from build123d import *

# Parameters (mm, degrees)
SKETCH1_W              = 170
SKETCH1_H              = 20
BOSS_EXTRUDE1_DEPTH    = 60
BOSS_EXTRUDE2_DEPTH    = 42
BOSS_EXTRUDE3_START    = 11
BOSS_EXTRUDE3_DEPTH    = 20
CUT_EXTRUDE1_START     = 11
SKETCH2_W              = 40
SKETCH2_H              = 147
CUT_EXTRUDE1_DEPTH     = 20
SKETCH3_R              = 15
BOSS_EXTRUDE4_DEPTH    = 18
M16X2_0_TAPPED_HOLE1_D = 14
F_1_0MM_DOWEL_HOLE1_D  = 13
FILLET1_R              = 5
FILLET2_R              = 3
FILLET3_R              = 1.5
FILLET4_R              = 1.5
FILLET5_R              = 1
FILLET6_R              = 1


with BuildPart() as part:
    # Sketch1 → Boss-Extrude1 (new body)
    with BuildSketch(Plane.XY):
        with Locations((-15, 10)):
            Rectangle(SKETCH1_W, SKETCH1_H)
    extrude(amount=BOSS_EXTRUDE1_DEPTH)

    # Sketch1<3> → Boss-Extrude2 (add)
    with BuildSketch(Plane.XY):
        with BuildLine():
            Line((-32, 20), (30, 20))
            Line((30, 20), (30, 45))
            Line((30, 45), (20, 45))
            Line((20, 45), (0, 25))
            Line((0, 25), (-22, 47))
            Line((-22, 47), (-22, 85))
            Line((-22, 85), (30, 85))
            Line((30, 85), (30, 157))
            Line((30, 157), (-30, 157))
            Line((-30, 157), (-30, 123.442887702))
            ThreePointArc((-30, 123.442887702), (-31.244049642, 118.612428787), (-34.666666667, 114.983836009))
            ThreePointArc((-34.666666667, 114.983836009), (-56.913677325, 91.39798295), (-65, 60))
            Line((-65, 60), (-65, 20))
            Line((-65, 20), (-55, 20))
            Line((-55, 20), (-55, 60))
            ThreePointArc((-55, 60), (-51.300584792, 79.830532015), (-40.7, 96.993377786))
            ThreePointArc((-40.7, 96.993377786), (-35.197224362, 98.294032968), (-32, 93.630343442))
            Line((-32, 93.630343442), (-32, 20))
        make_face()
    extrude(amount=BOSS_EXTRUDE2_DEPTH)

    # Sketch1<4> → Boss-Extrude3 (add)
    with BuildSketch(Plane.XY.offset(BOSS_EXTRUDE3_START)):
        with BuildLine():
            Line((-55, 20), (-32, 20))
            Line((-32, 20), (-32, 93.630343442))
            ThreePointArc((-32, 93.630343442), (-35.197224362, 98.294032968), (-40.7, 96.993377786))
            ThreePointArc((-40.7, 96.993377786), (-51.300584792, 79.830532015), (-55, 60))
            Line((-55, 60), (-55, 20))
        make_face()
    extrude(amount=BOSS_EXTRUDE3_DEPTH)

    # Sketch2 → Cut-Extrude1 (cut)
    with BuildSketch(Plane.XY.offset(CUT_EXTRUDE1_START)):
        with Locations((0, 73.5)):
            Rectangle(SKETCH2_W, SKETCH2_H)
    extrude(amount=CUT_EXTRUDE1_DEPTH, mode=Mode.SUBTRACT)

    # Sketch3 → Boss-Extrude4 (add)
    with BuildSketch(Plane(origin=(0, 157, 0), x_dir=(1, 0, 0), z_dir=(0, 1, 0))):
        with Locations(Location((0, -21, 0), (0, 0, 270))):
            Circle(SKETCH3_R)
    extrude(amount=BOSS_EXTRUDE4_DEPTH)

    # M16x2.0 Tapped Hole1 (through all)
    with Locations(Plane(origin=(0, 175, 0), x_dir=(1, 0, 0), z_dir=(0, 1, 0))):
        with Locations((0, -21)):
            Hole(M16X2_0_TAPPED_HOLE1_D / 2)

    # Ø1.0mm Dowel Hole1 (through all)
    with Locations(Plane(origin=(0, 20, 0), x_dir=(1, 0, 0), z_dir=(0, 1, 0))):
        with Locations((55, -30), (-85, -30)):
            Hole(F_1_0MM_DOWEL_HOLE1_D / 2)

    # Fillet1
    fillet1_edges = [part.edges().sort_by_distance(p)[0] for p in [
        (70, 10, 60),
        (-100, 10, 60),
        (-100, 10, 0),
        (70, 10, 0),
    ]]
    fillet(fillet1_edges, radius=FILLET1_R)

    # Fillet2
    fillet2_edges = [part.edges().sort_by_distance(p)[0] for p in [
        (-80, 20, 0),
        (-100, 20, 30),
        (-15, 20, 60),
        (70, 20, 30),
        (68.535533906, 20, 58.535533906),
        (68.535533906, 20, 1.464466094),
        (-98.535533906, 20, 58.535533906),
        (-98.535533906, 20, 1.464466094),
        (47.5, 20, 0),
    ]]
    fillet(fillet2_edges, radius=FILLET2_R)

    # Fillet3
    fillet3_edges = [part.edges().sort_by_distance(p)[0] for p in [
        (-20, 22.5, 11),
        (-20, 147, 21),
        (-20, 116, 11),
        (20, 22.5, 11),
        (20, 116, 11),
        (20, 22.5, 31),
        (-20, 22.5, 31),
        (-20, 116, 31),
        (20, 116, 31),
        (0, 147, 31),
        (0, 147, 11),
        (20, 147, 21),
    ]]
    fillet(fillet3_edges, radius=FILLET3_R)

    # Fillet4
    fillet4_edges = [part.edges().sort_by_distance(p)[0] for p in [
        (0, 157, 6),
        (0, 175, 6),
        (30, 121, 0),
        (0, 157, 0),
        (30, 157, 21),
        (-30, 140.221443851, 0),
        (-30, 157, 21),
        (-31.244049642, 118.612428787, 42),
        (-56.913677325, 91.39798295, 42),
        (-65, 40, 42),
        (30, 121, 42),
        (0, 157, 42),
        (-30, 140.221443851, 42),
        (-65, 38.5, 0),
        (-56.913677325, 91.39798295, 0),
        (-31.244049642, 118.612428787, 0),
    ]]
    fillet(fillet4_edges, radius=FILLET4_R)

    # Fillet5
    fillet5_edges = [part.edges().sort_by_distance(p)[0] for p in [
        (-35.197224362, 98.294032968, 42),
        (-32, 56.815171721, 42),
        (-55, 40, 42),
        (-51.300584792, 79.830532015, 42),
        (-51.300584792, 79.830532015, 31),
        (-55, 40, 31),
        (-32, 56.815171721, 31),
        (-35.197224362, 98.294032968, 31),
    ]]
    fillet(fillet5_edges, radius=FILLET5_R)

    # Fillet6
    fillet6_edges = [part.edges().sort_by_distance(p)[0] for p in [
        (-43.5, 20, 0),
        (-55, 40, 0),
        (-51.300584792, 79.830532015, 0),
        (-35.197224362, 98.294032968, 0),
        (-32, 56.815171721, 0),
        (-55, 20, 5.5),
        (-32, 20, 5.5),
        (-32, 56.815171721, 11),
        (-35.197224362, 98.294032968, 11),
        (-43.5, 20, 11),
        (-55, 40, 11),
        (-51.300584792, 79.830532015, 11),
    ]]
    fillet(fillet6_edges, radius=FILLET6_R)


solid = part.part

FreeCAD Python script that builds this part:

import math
import FreeCAD as App
import Part
import Sketcher
from FreeCAD import Vector
Q = App.Units.Quantity


def edges_at(feature, points):
    """Names of the edges that pass closest to the given points."""
    edges = feature.Shape.Edges
    near = lambda p: min(range(len(edges)), key=lambda i: edges[i].distToShape(Part.Vertex(*p))[0])
    return sorted({f"Edge{near(p) + 1}" for p in points})


def add_polygon(sketch, points):
    """Adds a closed chain of lines whose ends are joined by coincident constraints."""
    first, n = sketch.GeometryCount, len(points)
    for a, b in zip(points, points[1:] + points[:1]):
        sketch.addGeometry(Part.LineSegment(App.Vector(*a, 0), App.Vector(*b, 0)), False)
    for i in range(n):
        sketch.addConstraint(Sketcher.Constraint("Coincident", first + i, 2, first + (i + 1) % n, 1))

doc = App.newDocument("Part")
params = doc.addObject("Spreadsheet::Sheet", "Params")
for row, (alias, value) in enumerate([
    ("sketch1_width", "170 mm"),
    ("sketch1_height", "20 mm"),
    ("pad1_length", "60 mm"),
    ("sketch2_radius", "10 mm"),
    ("sketch2_radius2", "65 mm"),
    ("sketch2_radius3", "55 mm"),
    ("sketch2_radius4", "5 mm"),
    ("sketch2_width", "62 mm"),
    ("pad2_length", "42 mm"),
    ("sketch3_radius", "5 mm"),
    ("sketch3_radius2", "55 mm"),
    ("sketch3_width", "23 mm"),
    ("sketch3_height", "40 mm"),
    ("pad3_length", "20 mm"),
    ("sketch4_width", "40 mm"),
    ("sketch4_height", "147 mm"),
    ("pocket1_length", "20 mm"),
    ("sketch5_diameter", "30 mm"),
    ("pad4_length", "18 mm"),
    ("sketch6_diameter", "14 mm"),
    ("hole_diameter", "14 mm"),
    ("sketch7_diameter", "13 mm"),
    ("hole2_diameter", "13 mm"),
    ("fillet_radius", "5 mm"),
    ("fillet2_radius", "3 mm"),
    ("fillet3_radius", "1.5 mm"),
    ("fillet4_radius", "1.5 mm"),
    ("fillet5_radius", "1 mm"),
    ("fillet6_radius", "1 mm"),
], start=1):
    params.set(f"A{row}", alias)
    params.set(f"B{row}", "=" + value)
    params.setAlias(f"B{row}", alias)

body = doc.addObject("PartDesign::Body", "Body")

# Sketch on XY plane
sketch1 = doc.addObject("Sketcher::SketchObject", "Sketch")
body.addObject(sketch1)
sketch1.AttachmentSupport = (doc.XY_Plane, [""])
sketch1.MapMode = "FlatFace"
add_polygon(sketch1, [(-100, 20), (-100, 0), (70, 0), (70, 20)])  # lines 0-3
sketch1.addConstraint([
    Sketcher.Constraint("Vertical", 0),
    Sketcher.Constraint("Horizontal", 1),
    Sketcher.Constraint("Vertical", 2),
    Sketcher.Constraint("Horizontal", 3),
    Sketcher.Constraint("PointOnObject", 0, 2, -1),
    Sketcher.Constraint("DistanceX", 1, 1, 1, 2, 170.0),
    Sketcher.Constraint("DistanceY", 0, 2, 0, 1, 20.0),
    Sketcher.Constraint("DistanceX", 0, 2, -1, 1, 100.0),
])
sketch1.setExpression("Constraints[9]", "Params.sketch1_width")
sketch1.setExpression("Constraints[10]", "Params.sketch1_height")
pad1 = doc.addObject("PartDesign::Pad", "Pad")
body.addObject(pad1)
pad1.Profile = sketch1
pad1.setExpression("Length", "Params.pad1_length")

# Sketch on XY plane
sketch2 = doc.addObject("Sketcher::SketchObject", "Sketch001")
body.addObject(sketch2)
sketch2.AttachmentSupport = (doc.XY_Plane, [""])
sketch2.MapMode = "FlatFace"
sketch2.addGeometry([
    Part.LineSegment(Vector(-32, 20, 0), Vector(30, 20, 0)),  # 0
    Part.LineSegment(Vector(30, 20, 0), Vector(30, 45, 0)),  # 1
    Part.LineSegment(Vector(30, 45, 0), Vector(20, 45, 0)),  # 2
    Part.LineSegment(Vector(20, 45, 0), Vector(0, 25, 0)),  # 3
    Part.LineSegment(Vector(0, 25, 0), Vector(-22, 47, 0)),  # 4
    Part.LineSegment(Vector(-22, 47, 0), Vector(-22, 85, 0)),  # 5
    Part.LineSegment(Vector(-22, 85, 0), Vector(30, 85, 0)),  # 6
    Part.LineSegment(Vector(30, 85, 0), Vector(30, 157, 0)),  # 7
    Part.LineSegment(Vector(30, 157, 0), Vector(-30, 157, 0)),  # 8
    Part.LineSegment(Vector(-30, 157, 0), Vector(-30, 123, 0)),  # 9
    Part.ArcOfCircle(Part.Circle(Vector(-40, 123, 0), Vector(0, 0, 1), 10), math.radians(-58), math.radians(0)),  # 10
    Part.ArcOfCircle(Part.Circle(Vector(0, 60, 0), Vector(0, 0, 1), 65), math.radians(122), math.radians(180)),  # 11
    Part.LineSegment(Vector(-65, 60, 0), Vector(-65, 20, 0)),  # 12
    Part.LineSegment(Vector(-65, 20, 0), Vector(-55, 20, 0)),  # 13
    Part.LineSegment(Vector(-55, 20, 0), Vector(-55, 60, 0)),  # 14
    Part.ArcOfCircle(Part.Circle(Vector(0, 60, 0), Vector(0, 0, 1), 55), math.radians(138), math.radians(180)),  # 15
    Part.ArcOfCircle(Part.Circle(Vector(-37, 94, 0), Vector(0, 0, 1), 5), math.radians(0), math.radians(138)),  # 16
    Part.LineSegment(Vector(-32, 94, 0), Vector(-32, 20, 0)),  # 17
], False)
sketch2.addConstraint([
    Sketcher.Constraint("Coincident", 0, 2, 1, 1),
    Sketcher.Constraint("Coincident", 1, 2, 2, 1),
    Sketcher.Constraint("Coincident", 2, 2, 3, 1),
    Sketcher.Constraint("Coincident", 3, 2, 4, 1),
    Sketcher.Constraint("Coincident", 4, 2, 5, 1),
    Sketcher.Constraint("Coincident", 5, 2, 6, 1),
    Sketcher.Constraint("Coincident", 6, 2, 7, 1),
    Sketcher.Constraint("Coincident", 7, 2, 8, 1),
    Sketcher.Constraint("Coincident", 8, 2, 9, 1),
    Sketcher.Constraint("Tangent", 9, 2, 10, 2),
    Sketcher.Constraint("Tangent", 10, 1, 11, 1),
    Sketcher.Constraint("Tangent", 11, 2, 12, 1),
    Sketcher.Constraint("Coincident", 12, 2, 13, 1),
    Sketcher.Constraint("Coincident", 13, 2, 14, 1),
    Sketcher.Constraint("Tangent", 14, 2, 15, 2),
    Sketcher.Constraint("Tangent", 15, 1, 16, 2),
    Sketcher.Constraint("Tangent", 16, 1, 17, 1),
    Sketcher.Constraint("Coincident", 17, 2, 0, 1),
    Sketcher.Constraint("Horizontal", 0),
    Sketcher.Constraint("Vertical", 1),
    Sketcher.Constraint("Horizontal", 2),
    Sketcher.Constraint("Vertical", 5),
    Sketcher.Constraint("Horizontal", 6),
    Sketcher.Constraint("Vertical", 7),
    Sketcher.Constraint("Horizontal", 8),
    Sketcher.Constraint("Vertical", 9),
    Sketcher.Constraint("Vertical", 12),
    Sketcher.Constraint("Horizontal", 13),
    Sketcher.Constraint("Vertical", 14),
    Sketcher.Constraint("Vertical", 17),
    Sketcher.Constraint("Coincident", 15, 3, 11, 3),
    Sketcher.Constraint("PointOnObject", 11, 3, -2),
    Sketcher.Constraint("PointOnObject", 3, 2, -2),
    Sketcher.Constraint("Perpendicular", 3, 4),
    Sketcher.Constraint("Horizontal", 0, 2, 12, 2),
    Sketcher.Constraint("Vertical", 1, 2, 6, 2),
    Sketcher.Constraint("Equal", 2, 13),
    Sketcher.Constraint("Radius", 10, 10.0),
    Sketcher.Constraint("Radius", 11, 65.0),
    Sketcher.Constraint("Radius", 15, 55.0),
    Sketcher.Constraint("Radius", 16, 5.0),
    Sketcher.Constraint("DistanceX", 0, 1, 0, 2, 62.0),
    Sketcher.Constraint("DistanceX", 6, 1, 6, 2, 52.0),
    Sketcher.Constraint("DistanceX", 8, 2, 8, 1, 60.0),
    Sketcher.Constraint("DistanceY", 1, 1, 1, 2, 25.0),
    Sketcher.Constraint("DistanceY", 5, 1, 5, 2, 38.0),
    Sketcher.Constraint("DistanceY", 7, 1, 7, 2, 72.0),
    Sketcher.Constraint("DistanceY", 12, 2, 12, 1, 40.0),
    Sketcher.Constraint("Angle", 3, Q("-135 deg")),
    Sketcher.Constraint("DistanceX", 10, 3, -1, 1, 40.0),
    Sketcher.Constraint("DistanceY", -1, 1, 11, 3, 60.0),
])
sketch2.setExpression("Constraints[37]", "Params.sketch2_radius")
sketch2.setExpression("Constraints[38]", "Params.sketch2_radius2")
sketch2.setExpression("Constraints[39]", "Params.sketch2_radius3")
sketch2.setExpression("Constraints[40]", "Params.sketch2_radius4")
sketch2.setExpression("Constraints[41]", "Params.sketch2_width")
pad2 = doc.addObject("PartDesign::Pad", "Pad001")
body.addObject(pad2)
pad2.Profile = sketch2
pad2.setExpression("Length", "Params.pad2_length")

# Sketch on XY plane
sketch3 = doc.addObject("Sketcher::SketchObject", "Sketch002")
body.addObject(sketch3)
sketch3.AttachmentSupport = (doc.XY_Plane, [""])
sketch3.MapMode = "FlatFace"
sketch3.AttachmentOffset = App.Placement(Vector(0, 0, 11), App.Rotation())
sketch3.addGeometry([
    Part.LineSegment(Vector(-55, 20, 0), Vector(-32, 20, 0)),  # 0
    Part.LineSegment(Vector(-32, 20, 0), Vector(-32, 94, 0)),  # 1
    Part.ArcOfCircle(Part.Circle(Vector(-37, 94, 0), Vector(0, 0, 1), 5), math.radians(0), math.radians(138)),  # 2
    Part.ArcOfCircle(Part.Circle(Vector(0, 60, 0), Vector(0, 0, 1), 55), math.radians(138), math.radians(180)),  # 3
    Part.LineSegment(Vector(-55, 60, 0), Vector(-55, 20, 0)),  # 4
], False)
sketch3.addConstraint([
    Sketcher.Constraint("Coincident", 0, 2, 1, 1),
    Sketcher.Constraint("Tangent", 1, 2, 2, 1),
    Sketcher.Constraint("Tangent", 2, 2, 3, 1),
    Sketcher.Constraint("Tangent", 3, 2, 4, 1),
    Sketcher.Constraint("Coincident", 4, 2, 0, 1),
    Sketcher.Constraint("Horizontal", 0),
    Sketcher.Constraint("Vertical", 1),
    Sketcher.Constraint("Vertical", 4),
    Sketcher.Constraint("PointOnObject", 3, 3, -2),
    Sketcher.Constraint("Radius", 2, 5.0),
    Sketcher.Constraint("Radius", 3, 55.0),
    Sketcher.Constraint("DistanceX", 0, 1, 0, 2, 23.0),
    Sketcher.Constraint("DistanceY", 4, 2, 4, 1, 40.0),
    Sketcher.Constraint("DistanceY", -1, 1, 3, 3, 60.0),
])
sketch3.setExpression("Constraints[9]", "Params.sketch3_radius")
sketch3.setExpression("Constraints[10]", "Params.sketch3_radius2")
sketch3.setExpression("Constraints[11]", "Params.sketch3_width")
sketch3.setExpression("Constraints[12]", "Params.sketch3_height")
pad3 = doc.addObject("PartDesign::Pad", "Pad002")
body.addObject(pad3)
pad3.Profile = sketch3
pad3.setExpression("Length", "Params.pad3_length")

# Sketch on XY plane
sketch4 = doc.addObject("Sketcher::SketchObject", "Sketch003")
body.addObject(sketch4)
sketch4.AttachmentSupport = (doc.XY_Plane, [""])
sketch4.MapMode = "FlatFace"
sketch4.AttachmentOffset = App.Placement(Vector(0, 0, 11), App.Rotation())
add_polygon(sketch4, [(-20, 147), (-20, 0), (20, 0), (20, 147)])  # lines 0-3
sketch4.addConstraint([
    Sketcher.Constraint("Vertical", 0),
    Sketcher.Constraint("Horizontal", 1),
    Sketcher.Constraint("Vertical", 2),
    Sketcher.Constraint("Horizontal", 3),
    Sketcher.Constraint("Symmetric", 0, 2, 1, 2, -1, 1),
    Sketcher.Constraint("DistanceX", 1, 1, 1, 2, 40.0),
    Sketcher.Constraint("DistanceY", 0, 2, 0, 1, 147.0),
])
sketch4.setExpression("Constraints[9]", "Params.sketch4_width")
sketch4.setExpression("Constraints[10]", "Params.sketch4_height")
pocket1 = doc.addObject("PartDesign::Pocket", "Pocket")
body.addObject(pocket1)
pocket1.Profile = sketch4
pocket1.setExpression("Length", "Params.pocket1_length")
pocket1.Reversed = True

# Sketch on XZ plane
sketch5 = doc.addObject("Sketcher::SketchObject", "Sketch004")
body.addObject(sketch5)
sketch5.AttachmentSupport = (doc.XZ_Plane, [""])
sketch5.MapMode = "FlatFace"
sketch5.AttachmentOffset = App.Placement(Vector(0, 0, -157), App.Rotation())
sketch5.addGeometry(Part.Circle(Vector(0, 21, 0), Vector(0, 0, 1), 15), False)
sketch5.addConstraint([
    Sketcher.Constraint("PointOnObject", 0, 3, -2),
    Sketcher.Constraint("Diameter", 0, 30.0),
    Sketcher.Constraint("DistanceY", -1, 1, 0, 3, 21.0),
])
sketch5.setExpression("Constraints[1]", "Params.sketch5_diameter")
pad4 = doc.addObject("PartDesign::Pad", "Pad003")
body.addObject(pad4)
pad4.Profile = sketch5
pad4.setExpression("Length", "Params.pad4_length")
pad4.Reversed = True

# Sketch on XZ plane
sketch6 = doc.addObject("Sketcher::SketchObject", "Sketch005")
body.addObject(sketch6)
sketch6.AttachmentSupport = (doc.XZ_Plane, [""])
sketch6.MapMode = "FlatFace"
sketch6.AttachmentOffset = App.Placement(Vector(0, 0, -175), App.Rotation())
sketch6.addGeometry(Part.Circle(Vector(0, 21, 0), Vector(0, 0, 1), 7), False)
sketch6.addConstraint([
    Sketcher.Constraint("PointOnObject", 0, 3, -2),
    Sketcher.Constraint("Diameter", 0, 14.0),
    Sketcher.Constraint("DistanceY", -1, 1, 0, 3, 21.0),
])
sketch6.setExpression("Constraints[1]", "Params.sketch6_diameter")
doc.recompute()
hole = doc.addObject("PartDesign::Hole", "Hole")
body.addObject(hole)
hole.Profile = sketch6
hole.ThreadType = "None"
hole.setExpression("Diameter", "Params.hole_diameter")
hole.DepthType = "ThroughAll"
hole.Reversed = True

# Sketch on XZ plane
sketch7 = doc.addObject("Sketcher::SketchObject", "Sketch006")
body.addObject(sketch7)
sketch7.AttachmentSupport = (doc.XZ_Plane, [""])
sketch7.MapMode = "FlatFace"
sketch7.AttachmentOffset = App.Placement(Vector(0, 0, -20), App.Rotation())
sketch7.addGeometry([
    Part.Circle(Vector(55, 30, 0), Vector(0, 0, 1), 6),
    Part.Circle(Vector(-85, 30, 0), Vector(0, 0, 1), 6),
], False)
sketch7.addConstraint([
    Sketcher.Constraint("Equal", 0, 1),
    Sketcher.Constraint("Horizontal", 0, 3, 1, 3),
    Sketcher.Constraint("Diameter", 0, 13.0),
    Sketcher.Constraint("DistanceX", -1, 1, 0, 3, 55.0),
    Sketcher.Constraint("DistanceY", -1, 1, 0, 3, 30.0),
    Sketcher.Constraint("DistanceX", 1, 3, -1, 1, 85.0),
])
sketch7.setExpression("Constraints[2]", "Params.sketch7_diameter")
doc.recompute()
hole2 = doc.addObject("PartDesign::Hole", "Hole001")
body.addObject(hole2)
hole2.Profile = sketch7
hole2.ThreadType = "None"
hole2.setExpression("Diameter", "Params.hole2_diameter")
hole2.DepthType = "ThroughAll"
hole2.Reversed = True
doc.recompute()

fillet = doc.addObject("PartDesign::Fillet", "Fillet")
body.addObject(fillet)
fillet.Base = (hole2, edges_at(hole2, [
    (70, 10, 60),
    (-100, 10, 60),
    (-100, 10, 0),
    (70, 10, 0),
]))
fillet.setExpression("Radius", "Params.fillet_radius")
doc.recompute()

fillet2 = doc.addObject("PartDesign::Fillet", "Fillet001")
body.addObject(fillet2)
fillet2.Base = (fillet, edges_at(fillet, [
    (-80, 20, 0),
    (-100, 20, 30),
    (-15, 20, 60),
    (70, 20, 30),
    (68.536, 20, 58.536),
    (68.536, 20, 1.464),
    (-98.536, 20, 58.536),
    (-98.536, 20, 1.464),
    (47.5, 20, 0),
]))
fillet2.setExpression("Radius", "Params.fillet2_radius")
doc.recompute()

fillet3 = doc.addObject("PartDesign::Fillet", "Fillet002")
body.addObject(fillet3)
fillet3.Base = (fillet2, edges_at(fillet2, [
    (-20, 22.5, 11),
    (-20, 147, 21),
    (-20, 116, 11),
    (20, 22.5, 11),
    (20, 116, 11),
    (20, 22.5, 31),
    (-20, 22.5, 31),
    (-20, 116, 31),
    (20, 116, 31),
    (0, 147, 31),
    (0, 147, 11),
    (20, 147, 21),
]))
fillet3.setExpression("Radius", "Params.fillet3_radius")
doc.recompute()

fillet4 = doc.addObject("PartDesign::Fillet", "Fillet003")
body.addObject(fillet4)
fillet4.Base = (fillet3, edges_at(fillet3, [
    (0, 157, 6),
    (0, 175, 6),
    (30, 121, 0),
    (0, 157, 0),
    (30, 157, 21),
    (-30, 140.221, 0),
    (-30, 157, 21),
    (-31.244, 118.612, 42),
    (-56.914, 91.398, 42),
    (-65, 40, 42),
    (30, 121, 42),
    (0, 157, 42),
    (-30, 140.221, 42),
    (-65, 38.5, 0),
    (-56.914, 91.398, 0),
    (-31.244, 118.612, 0),
]))
fillet4.setExpression("Radius", "Params.fillet4_radius")
doc.recompute()

fillet5 = doc.addObject("PartDesign::Fillet", "Fillet004")
body.addObject(fillet5)
fillet5.Base = (fillet4, edges_at(fillet4, [
    (-35.197, 98.294, 42),
    (-32, 56.815, 42),
    (-55, 40, 42),
    (-51.301, 79.831, 42),
    (-51.301, 79.831, 31),
    (-55, 40, 31),
    (-32, 56.815, 31),
    (-35.197, 98.294, 31),
]))
fillet5.setExpression("Radius", "Params.fillet5_radius")
doc.recompute()

fillet6 = doc.addObject("PartDesign::Fillet", "Fillet005")
body.addObject(fillet6)
fillet6.Base = (fillet5, edges_at(fillet5, [
    (-43.5, 20, 0),
    (-55, 40, 0),
    (-51.301, 79.831, 0),
    (-35.197, 98.294, 0),
    (-32, 56.815, 0),
    (-55, 20, 5.5),
    (-32, 20, 5.5),
    (-32, 56.815, 11),
    (-35.197, 98.294, 11),
    (-43.5, 20, 11),
    (-55, 40, 11),
    (-51.301, 79.831, 11),
]))
fillet6.setExpression("Radius", "Params.fillet6_radius")

doc.recompute()
